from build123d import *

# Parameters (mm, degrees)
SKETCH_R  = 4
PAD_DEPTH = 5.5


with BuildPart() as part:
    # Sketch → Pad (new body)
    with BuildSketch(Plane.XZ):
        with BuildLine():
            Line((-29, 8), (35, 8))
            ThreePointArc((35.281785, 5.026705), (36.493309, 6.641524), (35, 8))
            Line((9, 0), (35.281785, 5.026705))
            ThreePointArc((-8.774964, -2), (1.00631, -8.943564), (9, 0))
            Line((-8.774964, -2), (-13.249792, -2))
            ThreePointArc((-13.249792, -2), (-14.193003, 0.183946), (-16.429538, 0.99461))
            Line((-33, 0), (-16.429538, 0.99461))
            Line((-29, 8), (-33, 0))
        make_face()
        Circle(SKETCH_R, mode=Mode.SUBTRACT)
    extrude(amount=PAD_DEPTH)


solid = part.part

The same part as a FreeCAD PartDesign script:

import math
import FreeCAD as App
import Part
import Sketcher

doc = App.newDocument("Part")
body = doc.addObject("PartDesign::Body", "Body")

# Sketch on XZ plane
sketch1 = doc.addObject("Sketcher::SketchObject", "Sketch")
body.addObject(sketch1)
sketch1.AttachmentSupport = (doc.XZ_Plane, [""])
sketch1.MapMode = "FlatFace"
sketch1.addGeometry([
    Part.LineSegment(App.Vector(35, 8, 0), App.Vector(-29, 8, 0)),  # 0
    Part.LineSegment(App.Vector(-29, 8, 0), App.Vector(-33, 0, 0)),  # 1
    Part.LineSegment(App.Vector(-33, 0, 0), App.Vector(-16.4, 1, 0)),  # 2
    Part.ArcOfCircle(Part.Circle(App.Vector(-16.2, -2, 0), App.Vector(0, 0, 1), 3), math.radians(0), math.radians(93)),  # 3
    Part.LineSegment(App.Vector(-13.2, -2, 0), App.Vector(-8.8, -2, 0)),  # 4
    Part.ArcOfCircle(Part.Circle(App.Vector(0, 0, 0), App.Vector(0, 0, 1), 9), math.radians(-167), math.radians(0)),  # 5
    Part.LineSegment(App.Vector(9, 0, 0), App.Vector(35.3, 5, 0)),  # 6
    Part.ArcOfCircle(Part.Circle(App.Vector(35, 6.5, 0), App.Vector(0, 0, 1), 1.5), math.radians(-79), math.radians(90)),  # 7
    Part.Circle(App.Vector(0, 0, 0), App.Vector(0, 0, 1), 4),  # 8
], False)
sketch1.addConstraint([
    Sketcher.Constraint("Coincident", 0, 2, 1, 1),
    Sketcher.Constraint("Coincident", 1, 2, 2, 1),
    Sketcher.Constraint("Tangent", 2, 2, 3, 2),
    Sketcher.Constraint("Coincident", 3, 1, 4, 1),
    Sketcher.Constraint("Coincident", 4, 2, 5, 1),
    Sketcher.Constraint("Coincident", 5, 2, 6, 1),
    Sketcher.Constraint("Tangent", 6, 2, 7, 1),
    Sketcher.Constraint("Tangent", 7, 2, 0, 1),
    Sketcher.Constraint("Horizontal", 0),
    Sketcher.Constraint("Horizontal", 4),
    Sketcher.Constraint("Coincident", 5, 3, -1, 1),
    Sketcher.Constraint("Coincident", 8, 3, -1, 1),
    Sketcher.Constraint("PointOnObject", 1, 2, -1),
    Sketcher.Constraint("PointOnObject", 5, 2, -1),
    Sketcher.Constraint("Diameter", 8, 8.0),
    Sketcher.Constraint("Radius", 3, 2.999999),
    Sketcher.Constraint("Radius", 5, 9.0),
    Sketcher.Constraint("Radius", 7, 1.5),
    Sketcher.Constraint("DistanceX", 0, 2, 0, 1, 64.0),
    Sketcher.Constraint("DistanceY", 3, 3, -1, 1, 1.999999),
    Sketcher.Constraint("DistanceX", -1, 1, 7, 3, 35.0),
    Sketcher.Constraint("DistanceY", -1, 1, 0, 2, 8.0),
    Sketcher.Constraint("DistanceX", 1, 2, -1, 1, 33.0),
    Sketcher.Constraint("DistanceY", 3, 1, -1, 1, 2.0),
    Sketcher.Constraint("DistanceX", 4, 1, 4, 2, 4.474828),
])
pad1 = doc.addObject("PartDesign::Pad", "Pad")
body.addObject(pad1)
pad1.Profile = sketch1
pad1.Length = 5.5

doc.recompute()
